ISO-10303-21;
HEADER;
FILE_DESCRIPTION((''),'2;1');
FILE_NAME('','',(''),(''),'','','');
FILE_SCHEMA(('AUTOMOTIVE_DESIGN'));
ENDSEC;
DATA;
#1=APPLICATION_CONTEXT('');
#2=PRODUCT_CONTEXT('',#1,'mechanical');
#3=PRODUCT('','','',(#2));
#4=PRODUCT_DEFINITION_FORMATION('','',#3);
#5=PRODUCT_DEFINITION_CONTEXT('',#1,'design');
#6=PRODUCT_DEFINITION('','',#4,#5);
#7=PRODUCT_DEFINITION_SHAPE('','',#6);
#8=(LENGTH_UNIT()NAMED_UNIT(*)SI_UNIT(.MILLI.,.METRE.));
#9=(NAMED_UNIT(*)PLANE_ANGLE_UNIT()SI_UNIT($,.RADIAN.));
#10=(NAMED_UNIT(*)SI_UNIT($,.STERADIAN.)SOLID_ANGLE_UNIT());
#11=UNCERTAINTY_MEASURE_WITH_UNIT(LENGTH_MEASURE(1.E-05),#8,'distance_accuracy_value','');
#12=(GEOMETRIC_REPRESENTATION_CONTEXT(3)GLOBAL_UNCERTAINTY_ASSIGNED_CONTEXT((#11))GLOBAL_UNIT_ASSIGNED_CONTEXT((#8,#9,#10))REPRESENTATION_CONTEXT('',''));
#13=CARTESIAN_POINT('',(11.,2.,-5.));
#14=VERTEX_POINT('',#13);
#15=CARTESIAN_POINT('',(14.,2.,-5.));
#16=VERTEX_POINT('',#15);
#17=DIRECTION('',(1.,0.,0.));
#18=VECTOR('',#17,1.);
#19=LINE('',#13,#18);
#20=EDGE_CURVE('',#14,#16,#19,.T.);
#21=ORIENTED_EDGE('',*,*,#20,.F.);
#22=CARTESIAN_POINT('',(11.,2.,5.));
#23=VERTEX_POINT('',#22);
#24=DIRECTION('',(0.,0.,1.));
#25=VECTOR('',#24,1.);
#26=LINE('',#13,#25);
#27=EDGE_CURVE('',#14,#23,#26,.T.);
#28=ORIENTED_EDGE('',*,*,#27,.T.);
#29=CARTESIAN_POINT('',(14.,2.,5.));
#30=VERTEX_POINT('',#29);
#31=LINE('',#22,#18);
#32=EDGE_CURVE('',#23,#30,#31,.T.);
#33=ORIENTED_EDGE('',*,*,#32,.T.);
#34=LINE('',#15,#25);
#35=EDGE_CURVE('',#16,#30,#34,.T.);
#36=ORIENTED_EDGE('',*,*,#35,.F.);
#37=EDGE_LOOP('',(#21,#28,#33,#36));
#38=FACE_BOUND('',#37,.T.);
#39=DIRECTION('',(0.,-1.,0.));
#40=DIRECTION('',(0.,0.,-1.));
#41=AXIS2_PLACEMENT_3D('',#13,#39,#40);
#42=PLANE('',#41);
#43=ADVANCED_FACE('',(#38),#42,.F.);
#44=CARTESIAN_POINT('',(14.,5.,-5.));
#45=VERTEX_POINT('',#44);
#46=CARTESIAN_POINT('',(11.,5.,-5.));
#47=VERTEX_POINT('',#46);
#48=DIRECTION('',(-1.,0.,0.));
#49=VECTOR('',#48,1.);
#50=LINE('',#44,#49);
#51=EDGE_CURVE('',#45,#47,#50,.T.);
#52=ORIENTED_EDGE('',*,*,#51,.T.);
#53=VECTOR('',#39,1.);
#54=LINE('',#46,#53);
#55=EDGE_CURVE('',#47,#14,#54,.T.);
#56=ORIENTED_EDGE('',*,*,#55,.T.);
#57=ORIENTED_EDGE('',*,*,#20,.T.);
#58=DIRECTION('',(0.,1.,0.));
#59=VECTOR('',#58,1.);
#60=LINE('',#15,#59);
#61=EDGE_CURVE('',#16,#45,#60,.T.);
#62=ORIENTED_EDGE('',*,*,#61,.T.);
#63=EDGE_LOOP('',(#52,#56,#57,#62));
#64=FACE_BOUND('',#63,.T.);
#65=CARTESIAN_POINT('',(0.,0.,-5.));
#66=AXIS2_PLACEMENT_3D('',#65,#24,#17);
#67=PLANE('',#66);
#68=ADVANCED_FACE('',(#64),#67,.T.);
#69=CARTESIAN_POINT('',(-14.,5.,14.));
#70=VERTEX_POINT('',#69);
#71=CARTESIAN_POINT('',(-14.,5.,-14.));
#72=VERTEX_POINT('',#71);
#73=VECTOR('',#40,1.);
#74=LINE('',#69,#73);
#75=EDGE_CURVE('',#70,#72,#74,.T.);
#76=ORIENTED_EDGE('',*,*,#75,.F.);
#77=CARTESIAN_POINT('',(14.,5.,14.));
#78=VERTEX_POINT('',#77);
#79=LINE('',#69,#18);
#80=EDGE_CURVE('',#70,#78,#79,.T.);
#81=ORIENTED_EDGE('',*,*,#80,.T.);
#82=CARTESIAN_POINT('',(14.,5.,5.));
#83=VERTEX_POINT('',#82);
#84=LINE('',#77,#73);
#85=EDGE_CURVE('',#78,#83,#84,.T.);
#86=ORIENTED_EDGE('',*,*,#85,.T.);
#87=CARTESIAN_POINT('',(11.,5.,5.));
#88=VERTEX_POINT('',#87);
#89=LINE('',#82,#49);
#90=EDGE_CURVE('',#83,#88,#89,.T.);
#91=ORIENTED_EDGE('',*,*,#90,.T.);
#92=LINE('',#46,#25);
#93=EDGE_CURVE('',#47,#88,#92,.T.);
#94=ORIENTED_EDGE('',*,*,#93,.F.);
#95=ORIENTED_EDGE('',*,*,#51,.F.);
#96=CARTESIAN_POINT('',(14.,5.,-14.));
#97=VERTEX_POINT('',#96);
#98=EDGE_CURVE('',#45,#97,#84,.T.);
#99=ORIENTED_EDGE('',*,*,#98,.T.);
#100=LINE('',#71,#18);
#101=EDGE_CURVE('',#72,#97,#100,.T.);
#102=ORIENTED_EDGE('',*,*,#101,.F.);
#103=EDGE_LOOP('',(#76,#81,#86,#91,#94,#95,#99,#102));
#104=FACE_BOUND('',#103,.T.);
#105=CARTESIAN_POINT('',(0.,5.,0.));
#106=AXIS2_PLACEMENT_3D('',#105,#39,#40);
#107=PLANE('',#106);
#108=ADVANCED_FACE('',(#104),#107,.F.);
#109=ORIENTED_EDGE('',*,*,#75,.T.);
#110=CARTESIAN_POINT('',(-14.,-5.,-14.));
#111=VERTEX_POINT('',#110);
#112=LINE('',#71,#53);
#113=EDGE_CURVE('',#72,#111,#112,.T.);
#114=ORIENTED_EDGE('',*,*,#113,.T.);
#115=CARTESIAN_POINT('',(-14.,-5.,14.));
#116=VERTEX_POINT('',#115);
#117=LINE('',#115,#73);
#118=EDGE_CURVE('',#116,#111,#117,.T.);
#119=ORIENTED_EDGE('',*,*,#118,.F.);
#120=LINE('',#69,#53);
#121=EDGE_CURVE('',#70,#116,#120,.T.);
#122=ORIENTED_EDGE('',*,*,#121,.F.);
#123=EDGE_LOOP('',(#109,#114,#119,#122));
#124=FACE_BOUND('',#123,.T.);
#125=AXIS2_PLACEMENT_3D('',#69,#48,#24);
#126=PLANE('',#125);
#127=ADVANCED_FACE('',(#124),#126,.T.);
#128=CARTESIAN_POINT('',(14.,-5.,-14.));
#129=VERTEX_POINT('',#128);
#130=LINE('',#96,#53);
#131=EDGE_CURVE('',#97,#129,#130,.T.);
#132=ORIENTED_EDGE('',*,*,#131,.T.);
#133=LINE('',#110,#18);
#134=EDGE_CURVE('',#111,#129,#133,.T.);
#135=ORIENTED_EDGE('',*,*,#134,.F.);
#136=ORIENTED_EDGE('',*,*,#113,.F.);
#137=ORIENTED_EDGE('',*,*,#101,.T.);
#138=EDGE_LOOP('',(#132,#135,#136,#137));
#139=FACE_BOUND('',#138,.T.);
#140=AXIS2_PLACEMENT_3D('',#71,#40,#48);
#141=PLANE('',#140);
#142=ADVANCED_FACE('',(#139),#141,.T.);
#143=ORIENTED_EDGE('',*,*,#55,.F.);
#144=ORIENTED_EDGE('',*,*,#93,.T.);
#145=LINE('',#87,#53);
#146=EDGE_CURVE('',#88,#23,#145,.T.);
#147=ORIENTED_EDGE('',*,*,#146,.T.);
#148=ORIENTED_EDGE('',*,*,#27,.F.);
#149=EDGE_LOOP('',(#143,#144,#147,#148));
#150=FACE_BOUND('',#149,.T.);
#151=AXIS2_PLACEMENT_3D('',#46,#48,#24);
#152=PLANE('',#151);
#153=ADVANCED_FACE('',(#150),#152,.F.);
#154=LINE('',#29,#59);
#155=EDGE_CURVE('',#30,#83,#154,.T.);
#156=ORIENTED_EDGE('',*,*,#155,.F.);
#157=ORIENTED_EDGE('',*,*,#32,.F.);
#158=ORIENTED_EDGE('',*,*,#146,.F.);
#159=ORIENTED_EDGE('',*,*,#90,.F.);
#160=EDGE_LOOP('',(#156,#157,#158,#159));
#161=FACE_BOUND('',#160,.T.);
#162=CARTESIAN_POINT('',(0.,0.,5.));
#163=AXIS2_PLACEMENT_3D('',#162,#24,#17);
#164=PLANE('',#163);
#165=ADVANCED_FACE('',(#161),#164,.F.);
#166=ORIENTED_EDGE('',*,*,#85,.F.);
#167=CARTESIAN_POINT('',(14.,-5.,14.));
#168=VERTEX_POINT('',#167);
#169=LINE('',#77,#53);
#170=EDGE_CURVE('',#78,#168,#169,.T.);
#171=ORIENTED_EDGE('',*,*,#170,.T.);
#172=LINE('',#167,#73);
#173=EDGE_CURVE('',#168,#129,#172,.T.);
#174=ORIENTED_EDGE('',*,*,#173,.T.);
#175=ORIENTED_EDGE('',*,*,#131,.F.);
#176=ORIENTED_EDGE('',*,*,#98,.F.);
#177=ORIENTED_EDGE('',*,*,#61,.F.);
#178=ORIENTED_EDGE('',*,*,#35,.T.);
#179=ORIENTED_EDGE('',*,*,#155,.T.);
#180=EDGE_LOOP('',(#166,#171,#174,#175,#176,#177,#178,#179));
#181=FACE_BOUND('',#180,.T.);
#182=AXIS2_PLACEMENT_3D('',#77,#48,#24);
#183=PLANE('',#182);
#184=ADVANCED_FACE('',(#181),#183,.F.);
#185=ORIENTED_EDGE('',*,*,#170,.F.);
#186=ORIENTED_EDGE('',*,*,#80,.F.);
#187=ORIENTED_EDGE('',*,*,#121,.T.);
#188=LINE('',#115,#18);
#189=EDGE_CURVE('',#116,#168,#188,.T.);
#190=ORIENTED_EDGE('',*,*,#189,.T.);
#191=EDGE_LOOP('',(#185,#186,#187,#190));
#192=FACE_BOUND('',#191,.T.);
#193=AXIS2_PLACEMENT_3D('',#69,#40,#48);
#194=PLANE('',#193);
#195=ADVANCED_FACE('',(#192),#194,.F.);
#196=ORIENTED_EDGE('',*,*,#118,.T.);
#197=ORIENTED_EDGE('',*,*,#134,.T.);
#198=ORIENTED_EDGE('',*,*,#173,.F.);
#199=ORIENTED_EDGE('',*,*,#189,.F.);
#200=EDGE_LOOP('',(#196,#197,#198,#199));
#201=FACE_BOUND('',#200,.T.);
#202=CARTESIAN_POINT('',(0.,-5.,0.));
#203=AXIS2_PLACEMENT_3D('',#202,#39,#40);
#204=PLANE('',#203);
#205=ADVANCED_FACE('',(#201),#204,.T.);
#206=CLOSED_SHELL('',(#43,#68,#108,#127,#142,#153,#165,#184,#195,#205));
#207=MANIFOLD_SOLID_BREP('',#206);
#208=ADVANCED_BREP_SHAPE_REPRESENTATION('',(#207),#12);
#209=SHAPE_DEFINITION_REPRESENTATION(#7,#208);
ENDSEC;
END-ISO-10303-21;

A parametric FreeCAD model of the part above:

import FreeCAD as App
import Part
import Sketcher

V = App.Vector


def add_polygon(sketch, points):
    """Adds a closed chain of lines whose ends are joined by coincident constraints."""
    first, n = sketch.GeometryCount, len(points)
    for a, b in zip(points, points[1:] + points[:1]):
        sketch.addGeometry(Part.LineSegment(App.Vector(*a, 0), App.Vector(*b, 0)), False)
    for i in range(n):
        sketch.addConstraint(Sketcher.Constraint("Coincident", first + i, 2, first + (i + 1) % n, 1))

doc = App.newDocument("Part")
body = doc.addObject("PartDesign::Body", "Body")

# Sketch on XZ plane
sketch1 = body.newObject("Sketcher::SketchObject", "Sketch")
sketch1.AttachmentSupport = (doc.getObject("XZ_Plane"), [""])
sketch1.MapMode = "FlatFace"
add_polygon(sketch1, [(-14, -14), (-14, 14), (14, 14), (14, -14)])  # lines 0-3
sketch1.addConstraint(Sketcher.Constraint("Vertical", 0))
sketch1.addConstraint(Sketcher.Constraint("Horizontal", 1))
sketch1.addConstraint(Sketcher.Constraint("Vertical", 2))
sketch1.addConstraint(Sketcher.Constraint("Horizontal", 3))
sketch1.addConstraint(Sketcher.Constraint("Symmetric", 0, 2, 2, 2, -1, 1))
sketch1.addConstraint(Sketcher.Constraint("Equal", 3, 0))
sketch1.addConstraint(Sketcher.Constraint("DistanceX", 1, 1, 1, 2, 28.0))
pad1 = body.newObject("PartDesign::Pad", "Pad")
pad1.Profile = sketch1
pad1.Length = 10
pad1.Midplane = True

# Sketch on XY plane
sketch2 = body.newObject("Sketcher::SketchObject", "Sketch001")
sketch2.AttachmentSupport = (doc.getObject("XY_Plane"), [""])
sketch2.MapMode = "FlatFace"
add_polygon(sketch2, [(11, 5), (11, 2), (14, 2), (14, 5)])  # lines 0-3
sketch2.addConstraint(Sketcher.Constraint("Vertical", 0))
sketch2.addConstraint(Sketcher.Constraint("Horizontal", 1))
sketch2.addConstraint(Sketcher.Constraint("Vertical", 2))
sketch2.addConstraint(Sketcher.Constraint("Horizontal", 3))
sketch2.addConstraint(Sketcher.Constraint("Equal", 3, 0))
sketch2.addConstraint(Sketcher.Constraint("DistanceX", 1, 1, 1, 2, 3.0))
sketch2.addConstraint(Sketcher.Constraint("DistanceX", -1, 1, 0, 2, 11.0))
sketch2.addConstraint(Sketcher.Constraint("DistanceY", -1, 1, 0, 2, 2.0))
pocket1 = body.newObject("PartDesign::Pocket", "Pocket")
pocket1.Profile = sketch2
pocket1.Length = 10
pocket1.Midplane = True

doc.recompute()
